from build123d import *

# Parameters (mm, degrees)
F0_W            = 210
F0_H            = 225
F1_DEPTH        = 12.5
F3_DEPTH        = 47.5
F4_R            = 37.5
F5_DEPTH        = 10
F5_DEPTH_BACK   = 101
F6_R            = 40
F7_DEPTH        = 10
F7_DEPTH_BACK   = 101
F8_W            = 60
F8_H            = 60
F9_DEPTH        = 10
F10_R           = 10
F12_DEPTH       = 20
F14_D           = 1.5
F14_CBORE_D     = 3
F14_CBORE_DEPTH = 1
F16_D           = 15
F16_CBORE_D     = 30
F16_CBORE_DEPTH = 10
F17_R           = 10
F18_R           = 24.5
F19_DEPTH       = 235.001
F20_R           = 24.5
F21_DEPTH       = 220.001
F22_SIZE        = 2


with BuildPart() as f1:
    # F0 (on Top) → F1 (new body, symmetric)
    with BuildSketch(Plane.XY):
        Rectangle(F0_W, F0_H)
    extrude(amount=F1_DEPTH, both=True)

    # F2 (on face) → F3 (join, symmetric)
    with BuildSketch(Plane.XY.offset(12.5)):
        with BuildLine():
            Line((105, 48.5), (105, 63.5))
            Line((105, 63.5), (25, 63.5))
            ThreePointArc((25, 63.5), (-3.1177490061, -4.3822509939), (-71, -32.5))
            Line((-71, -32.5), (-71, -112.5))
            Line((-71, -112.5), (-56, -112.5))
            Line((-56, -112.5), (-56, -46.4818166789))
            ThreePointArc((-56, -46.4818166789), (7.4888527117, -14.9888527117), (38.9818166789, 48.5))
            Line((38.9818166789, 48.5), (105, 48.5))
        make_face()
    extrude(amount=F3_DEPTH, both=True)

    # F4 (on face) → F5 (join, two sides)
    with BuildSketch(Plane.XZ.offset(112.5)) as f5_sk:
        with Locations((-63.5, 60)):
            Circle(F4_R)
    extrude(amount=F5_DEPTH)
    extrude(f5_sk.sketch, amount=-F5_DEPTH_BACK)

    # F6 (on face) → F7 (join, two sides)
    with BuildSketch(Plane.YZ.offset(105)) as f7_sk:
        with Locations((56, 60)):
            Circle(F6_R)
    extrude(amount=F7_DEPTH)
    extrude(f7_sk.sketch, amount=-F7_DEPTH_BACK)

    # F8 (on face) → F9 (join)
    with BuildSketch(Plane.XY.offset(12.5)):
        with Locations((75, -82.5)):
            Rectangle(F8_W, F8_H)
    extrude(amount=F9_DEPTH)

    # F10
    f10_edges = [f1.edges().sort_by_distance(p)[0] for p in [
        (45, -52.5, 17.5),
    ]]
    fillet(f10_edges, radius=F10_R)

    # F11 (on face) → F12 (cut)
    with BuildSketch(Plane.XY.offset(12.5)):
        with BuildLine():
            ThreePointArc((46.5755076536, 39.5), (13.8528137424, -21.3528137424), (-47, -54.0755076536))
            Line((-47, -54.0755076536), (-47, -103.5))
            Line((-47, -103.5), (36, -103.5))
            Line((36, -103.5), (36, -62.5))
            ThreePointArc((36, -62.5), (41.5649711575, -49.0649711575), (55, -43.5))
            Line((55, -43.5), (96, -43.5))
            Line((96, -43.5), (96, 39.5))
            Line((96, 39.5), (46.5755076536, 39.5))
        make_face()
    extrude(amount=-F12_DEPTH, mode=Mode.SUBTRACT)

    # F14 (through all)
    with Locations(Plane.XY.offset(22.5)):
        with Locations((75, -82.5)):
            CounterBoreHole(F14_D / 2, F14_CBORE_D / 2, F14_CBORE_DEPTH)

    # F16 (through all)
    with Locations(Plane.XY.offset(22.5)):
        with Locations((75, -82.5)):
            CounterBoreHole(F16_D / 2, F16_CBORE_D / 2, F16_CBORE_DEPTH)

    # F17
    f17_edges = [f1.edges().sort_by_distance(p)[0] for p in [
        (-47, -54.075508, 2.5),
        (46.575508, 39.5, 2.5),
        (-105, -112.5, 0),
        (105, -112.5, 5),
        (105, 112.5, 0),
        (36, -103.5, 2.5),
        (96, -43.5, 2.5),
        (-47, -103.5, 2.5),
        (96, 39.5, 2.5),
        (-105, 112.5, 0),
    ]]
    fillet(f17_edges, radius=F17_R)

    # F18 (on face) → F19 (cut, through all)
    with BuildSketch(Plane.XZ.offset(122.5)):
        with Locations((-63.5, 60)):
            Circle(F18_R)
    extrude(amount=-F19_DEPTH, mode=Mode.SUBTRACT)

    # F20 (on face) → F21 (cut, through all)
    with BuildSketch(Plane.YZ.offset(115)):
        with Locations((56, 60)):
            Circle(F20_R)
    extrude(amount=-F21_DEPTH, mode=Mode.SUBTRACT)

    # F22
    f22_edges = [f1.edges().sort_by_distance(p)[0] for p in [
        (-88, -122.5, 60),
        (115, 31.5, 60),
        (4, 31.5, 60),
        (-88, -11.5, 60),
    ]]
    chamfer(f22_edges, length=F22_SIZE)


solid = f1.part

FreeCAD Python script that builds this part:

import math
import FreeCAD as App
import Part
import Sketcher

V = App.Vector


def edges_at(feature, points):
    """Names of the edges that pass closest to the given points."""
    edges = feature.Shape.Edges
    near = lambda p: min(range(len(edges)), key=lambda i: edges[i].distToShape(Part.Vertex(*p))[0])
    return sorted({f"Edge{near(p) + 1}" for p in points})


def add_polygon(sketch, points):
    """Adds a closed chain of lines whose ends are joined by coincident constraints."""
    first, n = sketch.GeometryCount, len(points)
    for a, b in zip(points, points[1:] + points[:1]):
        sketch.addGeometry(Part.LineSegment(App.Vector(*a, 0), App.Vector(*b, 0)), False)
    for i in range(n):
        sketch.addConstraint(Sketcher.Constraint("Coincident", first + i, 2, first + (i + 1) % n, 1))

doc = App.newDocument("Part")
body = doc.addObject("PartDesign::Body", "Body")

sketch1 = body.newObject("Sketcher::SketchObject", "Sketch")
sketch1.AttachmentSupport = (doc.getObject("XY_Plane"), [""])
sketch1.MapMode = "FlatFace"
add_polygon(sketch1, [(-105, 112), (-105, -112), (105, -112), (105, 112)])
sketch1.addConstraint([
    Sketcher.Constraint("Vertical", 0),
    Sketcher.Constraint("Horizontal", 1),
    Sketcher.Constraint("Vertical", 2),
    Sketcher.Constraint("Horizontal", 3),
    Sketcher.Constraint("Symmetric", 0, 2, 2, 2, -1, 1),
    Sketcher.Constraint("DistanceX", 1, 1, 1, 2, 210.0),
    Sketcher.Constraint("DistanceY", 0, 2, 0, 1, 225.0),
])
pad1 = body.newObject("PartDesign::Pad", "Pad")
pad1.Profile = sketch1
pad1.Length = 25
pad1.Midplane = True

sketch2 = body.newObject("Sketcher::SketchObject", "Sketch001")
sketch2.AttachmentSupport = (doc.getObject("XY_Plane"), [""])
sketch2.MapMode = "FlatFace"
sketch2.AttachmentOffset = App.Placement(V(0, 0, 12.5), App.Rotation())
sketch2.addGeometry([
    Part.LineSegment(V(105, 48, 0), V(105, 64, 0)),
    Part.LineSegment(V(105, 64, 0), V(25, 64, 0)),
    Part.ArcOfCircle(Part.Circle(V(-71, 64, 0), V(0, 0, 1), 96), math.radians(-90), math.radians(0)),
    Part.LineSegment(V(-71, -32, 0), V(-71, -112, 0)),
    Part.LineSegment(V(-71, -112, 0), V(-56, -112, 0)),
    Part.LineSegment(V(-56, -112, 0), V(-56, -46, 0)),
    Part.ArcOfCircle(Part.Circle(V(-71, 64, 0), V(0, 0, 1), 111), math.radians(-82), math.radians(-8)),
    Part.LineSegment(V(39, 48, 0), V(105, 48, 0)),
], False)
sketch2.addConstraint([
    Sketcher.Constraint("Coincident", 0, 2, 1, 1),
    Sketcher.Constraint("Coincident", 1, 2, 2, 2),
    Sketcher.Constraint("Coincident", 2, 1, 3, 1),
    Sketcher.Constraint("Coincident", 3, 2, 4, 1),
    Sketcher.Constraint("Coincident", 4, 2, 5, 1),
    Sketcher.Constraint("Coincident", 5, 2, 6, 1),
    Sketcher.Constraint("Coincident", 6, 2, 7, 1),
    Sketcher.Constraint("Coincident", 7, 2, 0, 1),
    Sketcher.Constraint("Vertical", 0),
    Sketcher.Constraint("Horizontal", 1),
    Sketcher.Constraint("Vertical", 3),
    Sketcher.Constraint("Horizontal", 4),
    Sketcher.Constraint("Vertical", 5),
    Sketcher.Constraint("Horizontal", 7),
    Sketcher.Constraint("Coincident", 6, 3, 2, 3),
    Sketcher.Constraint("Horizontal", 6, 3, 0, 2),
    Sketcher.Constraint("Vertical", 6, 3, 2, 1),
    Sketcher.Constraint("Equal", 4, 0),
    Sketcher.Constraint("Equal", 1, 3),
    Sketcher.Constraint("Radius", 2, 96.0),
    Sketcher.Constraint("Radius", 6, 111.0),
    Sketcher.Constraint("DistanceX", 1, 2, 1, 1, 80.0),
    Sketcher.Constraint("DistanceX", 4, 1, 4, 2, 15.0),
    Sketcher.Constraint("DistanceX", 2, 3, -1, 1, 71.0),
    Sketcher.Constraint("DistanceY", -1, 1, 2, 3, 63.5),
])
pad2 = body.newObject("PartDesign::Pad", "Pad001")
pad2.Profile = sketch2
pad2.Length = 95
pad2.Midplane = True

sketch3 = body.newObject("Sketcher::SketchObject", "Sketch002")
sketch3.AttachmentSupport = (doc.getObject("XZ_Plane"), [""])
sketch3.MapMode = "FlatFace"
sketch3.AttachmentOffset = App.Placement(V(0, 0, 112.5), App.Rotation())
sketch3.addGeometry(Part.Circle(V(-64, 60, 0), V(0, 0, 1), 38), False)
sketch3.addConstraint([
    Sketcher.Constraint("Diameter", 0, 75.0),
    Sketcher.Constraint("DistanceY", -1, 1, 0, 3, 60.0),
    Sketcher.Constraint("DistanceX", 0, 3, -1, 1, 63.5),
])
pad3 = body.newObject("PartDesign::Pad", "Pad002")
pad3.Profile = sketch3
pad3.Type = "TwoLengths"
pad3.Length = 10
pad3.Length2 = 101

sketch4 = body.newObject("Sketcher::SketchObject", "Sketch003")
sketch4.AttachmentSupport = (doc.getObject("YZ_Plane"), [""])
sketch4.MapMode = "FlatFace"
sketch4.AttachmentOffset = App.Placement(V(0, 0, 105), App.Rotation())
sketch4.addGeometry(Part.Circle(V(56, 60, 0), V(0, 0, 1), 40), False)
sketch4.addConstraint([
    Sketcher.Constraint("Diameter", 0, 80.0),
    Sketcher.Constraint("DistanceX", -1, 1, 0, 3, 56.0),
    Sketcher.Constraint("DistanceY", -1, 1, 0, 3, 60.0),
])
pad4 = body.newObject("PartDesign::Pad", "Pad003")
pad4.Profile = sketch4
pad4.Type = "TwoLengths"
pad4.Length = 10
pad4.Length2 = 101

sketch5 = body.newObject("Sketcher::SketchObject", "Sketch004")
sketch5.AttachmentSupport = (doc.getObject("XY_Plane"), [""])
sketch5.MapMode = "FlatFace"
sketch5.AttachmentOffset = App.Placement(V(0, 0, 12.5), App.Rotation())
add_polygon(sketch5, [(45, -52), (45, -112), (105, -112), (105, -52)])
sketch5.addConstraint([
    Sketcher.Constraint("Vertical", 0),
    Sketcher.Constraint("Horizontal", 1),
    Sketcher.Constraint("Vertical", 2),
    Sketcher.Constraint("Horizontal", 3),
    Sketcher.Constraint("Equal", 3, 0),
    Sketcher.Constraint("DistanceX", 1, 1, 1, 2, 60.0),
    Sketcher.Constraint("DistanceX", -1, 1, 0, 2, 45.0),
    Sketcher.Constraint("DistanceY", 0, 2, -1, 1, 112.5),
])
pad5 = body.newObject("PartDesign::Pad", "Pad004")
pad5.Profile = sketch5
pad5.Length = 10
doc.recompute()

fillet = body.newObject("PartDesign::Fillet", "Fillet")
fillet.Base = (pad5, edges_at(pad5, [(45, -52.5, 17.5)]))
fillet.Radius = 10

sketch6 = body.newObject("Sketcher::SketchObject", "Sketch005")
sketch6.AttachmentSupport = (doc.getObject("XY_Plane"), [""])
sketch6.MapMode = "FlatFace"
sketch6.AttachmentOffset = App.Placement(V(0, 0, 12.5), App.Rotation())
sketch6.addGeometry([
    Part.ArcOfCircle(Part.Circle(V(-71, 64, 0), V(0, 0, 1), 120), math.radians(-78), math.radians(-12)),
    Part.LineSegment(V(-47, -54, 0), V(-47, -104, 0)),
    Part.LineSegment(V(-47, -104, 0), V(36, -104, 0)),
    Part.LineSegment(V(36, -104, 0), V(36, -62, 0)),
    Part.ArcOfCircle(Part.Circle(V(55, -62, 0), V(0, 0, 1), 19), math.radians(90), math.radians(180)),
    Part.LineSegment(V(55, -44, 0), V(96, -44, 0)),
    Part.LineSegment(V(96, -44, 0), V(96, 40, 0)),
    Part.LineSegment(V(96, 40, 0), V(47, 40, 0)),
], False)
sketch6.addConstraint([
    Sketcher.Constraint("Coincident", 0, 1, 1, 1),
    Sketcher.Constraint("Coincident", 1, 2, 2, 1),
    Sketcher.Constraint("Coincident", 2, 2, 3, 1),
    Sketcher.Constraint("Tangent", 3, 2, 4, 2),
    Sketcher.Constraint("Tangent", 4, 1, 5, 1),
    Sketcher.Constraint("Coincident", 5, 2, 6, 1),
    Sketcher.Constraint("Coincident", 6, 2, 7, 1),
    Sketcher.Constraint("Coincident", 7, 2, 0, 2),
    Sketcher.Constraint("Vertical", 1),
    Sketcher.Constraint("Horizontal", 2),
    Sketcher.Constraint("Vertical", 3),
    Sketcher.Constraint("Horizontal", 5),
    Sketcher.Constraint("Vertical", 6),
    Sketcher.Constraint("Horizontal", 7),
    Sketcher.Constraint("Equal", 7, 1),
    Sketcher.Constraint("Equal", 5, 3),
    Sketcher.Constraint("Equal", 2, 6),
    Sketcher.Constraint("Radius", 0, 120.0),
    Sketcher.Constraint("Radius", 4, 19.0),
    Sketcher.Constraint("DistanceX", 2, 1, 2, 2, 83.0),
    Sketcher.Constraint("DistanceX", 5, 1, 5, 2, 41.0),
    Sketcher.Constraint("DistanceX", 0, 3, -1, 1, 71.0),
    Sketcher.Constraint("DistanceX", -1, 1, 4, 3, 55.0),
    Sketcher.Constraint("DistanceY", -1, 1, 0, 3, 63.5),
])
pocket1 = body.newObject("PartDesign::Pocket", "Pocket")
pocket1.Profile = sketch6
pocket1.Length = 20

sketch7 = body.newObject("Sketcher::SketchObject", "Sketch006")
sketch7.AttachmentSupport = (doc.getObject("XY_Plane"), [""])
sketch7.MapMode = "FlatFace"
sketch7.AttachmentOffset = App.Placement(V(0, 0, 22.5), App.Rotation())
sketch7.addGeometry(Part.Circle(V(75, -82.5, 0), V(0, 0, 1), 0.8), False)
sketch7.addConstraint([
    Sketcher.Constraint("Diameter", 0, 1.5),
    Sketcher.Constraint("DistanceX", -1, 1, 0, 3, 75.0),
    Sketcher.Constraint("DistanceY", 0, 3, -1, 1, 82.5),
])
doc.recompute()
hole = body.newObject("PartDesign::Hole", "Hole")
hole.Profile = sketch7
hole.ThreadType = "None"
hole.Diameter = 1.5
hole.DepthType = "ThroughAll"
hole.HoleCutType = "Counterbore"
hole.HoleCutDiameter = 3
hole.HoleCutDepth = 1

sketch8 = body.newObject("Sketcher::SketchObject", "Sketch007")
sketch8.AttachmentSupport = (doc.getObject("XY_Plane"), [""])
sketch8.MapMode = "FlatFace"
sketch8.AttachmentOffset = App.Placement(V(0, 0, 22.5), App.Rotation())
sketch8.addGeometry(Part.Circle(V(75, -82, 0), V(0, 0, 1), 8), False)
sketch8.addConstraint([
    Sketcher.Constraint("Diameter", 0, 15.0),
    Sketcher.Constraint("DistanceX", -1, 1, 0, 3, 75.0),
    Sketcher.Constraint("DistanceY", 0, 3, -1, 1, 82.5),
])
doc.recompute()
hole2 = body.newObject("PartDesign::Hole", "Hole001")
hole2.Profile = sketch8
hole2.ThreadType = "None"
hole2.Diameter = 15
hole2.DepthType = "ThroughAll"
hole2.HoleCutType = "Counterbore"
hole2.HoleCutDiameter = 30
hole2.HoleCutDepth = 10
doc.recompute()

fillet2 = body.newObject("PartDesign::Fillet", "Fillet001")
fillet2.Base = (hole2, edges_at(hole2, [
    (-47, -54.076, 2.5),
    (46.576, 39.5, 2.5),
    (-105, -112.5, 0),
    (105, -112.5, 5),
    (105, 112.5, 0),
    (36, -103.5, 2.5),
    (96, -43.5, 2.5),
    (-47, -103.5, 2.5),
    (96, 39.5, 2.5),
    (-105, 112.5, 0),
]))
fillet2.Radius = 10

sketch9 = body.newObject("Sketcher::SketchObject", "Sketch008")
sketch9.AttachmentSupport = (doc.getObject("XZ_Plane"), [""])
sketch9.MapMode = "FlatFace"
sketch9.AttachmentOffset = App.Placement(V(0, 0, 122.5), App.Rotation())
sketch9.addGeometry(Part.Circle(V(-64, 60, 0), V(0, 0, 1), 24), False)
sketch9.addConstraint([
    Sketcher.Constraint("Diameter", 0, 49.0),
    Sketcher.Constraint("DistanceY", -1, 1, 0, 3, 60.0),
    Sketcher.Constraint("DistanceX", 0, 3, -1, 1, 63.5),
])
pocket2 = body.newObject("PartDesign::Pocket", "Pocket001")
pocket2.Profile = sketch9
pocket2.Type = "ThroughAll"

sketch10 = body.newObject("Sketcher::SketchObject", "Sketch009")
sketch10.AttachmentSupport = (doc.getObject("YZ_Plane"), [""])
sketch10.MapMode = "FlatFace"
sketch10.AttachmentOffset = App.Placement(V(0, 0, 115), App.Rotation())
sketch10.addGeometry(Part.Circle(V(56, 60, 0), V(0, 0, 1), 24), False)
sketch10.addConstraint([
    Sketcher.Constraint("Diameter", 0, 49.0),
    Sketcher.Constraint("DistanceX", -1, 1, 0, 3, 56.0),
    Sketcher.Constraint("DistanceY", -1, 1, 0, 3, 60.0),
])
pocket3 = body.newObject("PartDesign::Pocket", "Pocket002")
pocket3.Profile = sketch10
pocket3.Type = "ThroughAll"
doc.recompute()

chamfer = body.newObject("PartDesign::Chamfer", "Chamfer")
chamfer.Base = (pocket3, edges_at(pocket3, [
    (-88, -122.5, 60),
    (115, 31.5, 60),
    (4, 31.5, 60),
    (-88, -11.5, 60),
]))
chamfer.Size = 2

doc.recompute()
